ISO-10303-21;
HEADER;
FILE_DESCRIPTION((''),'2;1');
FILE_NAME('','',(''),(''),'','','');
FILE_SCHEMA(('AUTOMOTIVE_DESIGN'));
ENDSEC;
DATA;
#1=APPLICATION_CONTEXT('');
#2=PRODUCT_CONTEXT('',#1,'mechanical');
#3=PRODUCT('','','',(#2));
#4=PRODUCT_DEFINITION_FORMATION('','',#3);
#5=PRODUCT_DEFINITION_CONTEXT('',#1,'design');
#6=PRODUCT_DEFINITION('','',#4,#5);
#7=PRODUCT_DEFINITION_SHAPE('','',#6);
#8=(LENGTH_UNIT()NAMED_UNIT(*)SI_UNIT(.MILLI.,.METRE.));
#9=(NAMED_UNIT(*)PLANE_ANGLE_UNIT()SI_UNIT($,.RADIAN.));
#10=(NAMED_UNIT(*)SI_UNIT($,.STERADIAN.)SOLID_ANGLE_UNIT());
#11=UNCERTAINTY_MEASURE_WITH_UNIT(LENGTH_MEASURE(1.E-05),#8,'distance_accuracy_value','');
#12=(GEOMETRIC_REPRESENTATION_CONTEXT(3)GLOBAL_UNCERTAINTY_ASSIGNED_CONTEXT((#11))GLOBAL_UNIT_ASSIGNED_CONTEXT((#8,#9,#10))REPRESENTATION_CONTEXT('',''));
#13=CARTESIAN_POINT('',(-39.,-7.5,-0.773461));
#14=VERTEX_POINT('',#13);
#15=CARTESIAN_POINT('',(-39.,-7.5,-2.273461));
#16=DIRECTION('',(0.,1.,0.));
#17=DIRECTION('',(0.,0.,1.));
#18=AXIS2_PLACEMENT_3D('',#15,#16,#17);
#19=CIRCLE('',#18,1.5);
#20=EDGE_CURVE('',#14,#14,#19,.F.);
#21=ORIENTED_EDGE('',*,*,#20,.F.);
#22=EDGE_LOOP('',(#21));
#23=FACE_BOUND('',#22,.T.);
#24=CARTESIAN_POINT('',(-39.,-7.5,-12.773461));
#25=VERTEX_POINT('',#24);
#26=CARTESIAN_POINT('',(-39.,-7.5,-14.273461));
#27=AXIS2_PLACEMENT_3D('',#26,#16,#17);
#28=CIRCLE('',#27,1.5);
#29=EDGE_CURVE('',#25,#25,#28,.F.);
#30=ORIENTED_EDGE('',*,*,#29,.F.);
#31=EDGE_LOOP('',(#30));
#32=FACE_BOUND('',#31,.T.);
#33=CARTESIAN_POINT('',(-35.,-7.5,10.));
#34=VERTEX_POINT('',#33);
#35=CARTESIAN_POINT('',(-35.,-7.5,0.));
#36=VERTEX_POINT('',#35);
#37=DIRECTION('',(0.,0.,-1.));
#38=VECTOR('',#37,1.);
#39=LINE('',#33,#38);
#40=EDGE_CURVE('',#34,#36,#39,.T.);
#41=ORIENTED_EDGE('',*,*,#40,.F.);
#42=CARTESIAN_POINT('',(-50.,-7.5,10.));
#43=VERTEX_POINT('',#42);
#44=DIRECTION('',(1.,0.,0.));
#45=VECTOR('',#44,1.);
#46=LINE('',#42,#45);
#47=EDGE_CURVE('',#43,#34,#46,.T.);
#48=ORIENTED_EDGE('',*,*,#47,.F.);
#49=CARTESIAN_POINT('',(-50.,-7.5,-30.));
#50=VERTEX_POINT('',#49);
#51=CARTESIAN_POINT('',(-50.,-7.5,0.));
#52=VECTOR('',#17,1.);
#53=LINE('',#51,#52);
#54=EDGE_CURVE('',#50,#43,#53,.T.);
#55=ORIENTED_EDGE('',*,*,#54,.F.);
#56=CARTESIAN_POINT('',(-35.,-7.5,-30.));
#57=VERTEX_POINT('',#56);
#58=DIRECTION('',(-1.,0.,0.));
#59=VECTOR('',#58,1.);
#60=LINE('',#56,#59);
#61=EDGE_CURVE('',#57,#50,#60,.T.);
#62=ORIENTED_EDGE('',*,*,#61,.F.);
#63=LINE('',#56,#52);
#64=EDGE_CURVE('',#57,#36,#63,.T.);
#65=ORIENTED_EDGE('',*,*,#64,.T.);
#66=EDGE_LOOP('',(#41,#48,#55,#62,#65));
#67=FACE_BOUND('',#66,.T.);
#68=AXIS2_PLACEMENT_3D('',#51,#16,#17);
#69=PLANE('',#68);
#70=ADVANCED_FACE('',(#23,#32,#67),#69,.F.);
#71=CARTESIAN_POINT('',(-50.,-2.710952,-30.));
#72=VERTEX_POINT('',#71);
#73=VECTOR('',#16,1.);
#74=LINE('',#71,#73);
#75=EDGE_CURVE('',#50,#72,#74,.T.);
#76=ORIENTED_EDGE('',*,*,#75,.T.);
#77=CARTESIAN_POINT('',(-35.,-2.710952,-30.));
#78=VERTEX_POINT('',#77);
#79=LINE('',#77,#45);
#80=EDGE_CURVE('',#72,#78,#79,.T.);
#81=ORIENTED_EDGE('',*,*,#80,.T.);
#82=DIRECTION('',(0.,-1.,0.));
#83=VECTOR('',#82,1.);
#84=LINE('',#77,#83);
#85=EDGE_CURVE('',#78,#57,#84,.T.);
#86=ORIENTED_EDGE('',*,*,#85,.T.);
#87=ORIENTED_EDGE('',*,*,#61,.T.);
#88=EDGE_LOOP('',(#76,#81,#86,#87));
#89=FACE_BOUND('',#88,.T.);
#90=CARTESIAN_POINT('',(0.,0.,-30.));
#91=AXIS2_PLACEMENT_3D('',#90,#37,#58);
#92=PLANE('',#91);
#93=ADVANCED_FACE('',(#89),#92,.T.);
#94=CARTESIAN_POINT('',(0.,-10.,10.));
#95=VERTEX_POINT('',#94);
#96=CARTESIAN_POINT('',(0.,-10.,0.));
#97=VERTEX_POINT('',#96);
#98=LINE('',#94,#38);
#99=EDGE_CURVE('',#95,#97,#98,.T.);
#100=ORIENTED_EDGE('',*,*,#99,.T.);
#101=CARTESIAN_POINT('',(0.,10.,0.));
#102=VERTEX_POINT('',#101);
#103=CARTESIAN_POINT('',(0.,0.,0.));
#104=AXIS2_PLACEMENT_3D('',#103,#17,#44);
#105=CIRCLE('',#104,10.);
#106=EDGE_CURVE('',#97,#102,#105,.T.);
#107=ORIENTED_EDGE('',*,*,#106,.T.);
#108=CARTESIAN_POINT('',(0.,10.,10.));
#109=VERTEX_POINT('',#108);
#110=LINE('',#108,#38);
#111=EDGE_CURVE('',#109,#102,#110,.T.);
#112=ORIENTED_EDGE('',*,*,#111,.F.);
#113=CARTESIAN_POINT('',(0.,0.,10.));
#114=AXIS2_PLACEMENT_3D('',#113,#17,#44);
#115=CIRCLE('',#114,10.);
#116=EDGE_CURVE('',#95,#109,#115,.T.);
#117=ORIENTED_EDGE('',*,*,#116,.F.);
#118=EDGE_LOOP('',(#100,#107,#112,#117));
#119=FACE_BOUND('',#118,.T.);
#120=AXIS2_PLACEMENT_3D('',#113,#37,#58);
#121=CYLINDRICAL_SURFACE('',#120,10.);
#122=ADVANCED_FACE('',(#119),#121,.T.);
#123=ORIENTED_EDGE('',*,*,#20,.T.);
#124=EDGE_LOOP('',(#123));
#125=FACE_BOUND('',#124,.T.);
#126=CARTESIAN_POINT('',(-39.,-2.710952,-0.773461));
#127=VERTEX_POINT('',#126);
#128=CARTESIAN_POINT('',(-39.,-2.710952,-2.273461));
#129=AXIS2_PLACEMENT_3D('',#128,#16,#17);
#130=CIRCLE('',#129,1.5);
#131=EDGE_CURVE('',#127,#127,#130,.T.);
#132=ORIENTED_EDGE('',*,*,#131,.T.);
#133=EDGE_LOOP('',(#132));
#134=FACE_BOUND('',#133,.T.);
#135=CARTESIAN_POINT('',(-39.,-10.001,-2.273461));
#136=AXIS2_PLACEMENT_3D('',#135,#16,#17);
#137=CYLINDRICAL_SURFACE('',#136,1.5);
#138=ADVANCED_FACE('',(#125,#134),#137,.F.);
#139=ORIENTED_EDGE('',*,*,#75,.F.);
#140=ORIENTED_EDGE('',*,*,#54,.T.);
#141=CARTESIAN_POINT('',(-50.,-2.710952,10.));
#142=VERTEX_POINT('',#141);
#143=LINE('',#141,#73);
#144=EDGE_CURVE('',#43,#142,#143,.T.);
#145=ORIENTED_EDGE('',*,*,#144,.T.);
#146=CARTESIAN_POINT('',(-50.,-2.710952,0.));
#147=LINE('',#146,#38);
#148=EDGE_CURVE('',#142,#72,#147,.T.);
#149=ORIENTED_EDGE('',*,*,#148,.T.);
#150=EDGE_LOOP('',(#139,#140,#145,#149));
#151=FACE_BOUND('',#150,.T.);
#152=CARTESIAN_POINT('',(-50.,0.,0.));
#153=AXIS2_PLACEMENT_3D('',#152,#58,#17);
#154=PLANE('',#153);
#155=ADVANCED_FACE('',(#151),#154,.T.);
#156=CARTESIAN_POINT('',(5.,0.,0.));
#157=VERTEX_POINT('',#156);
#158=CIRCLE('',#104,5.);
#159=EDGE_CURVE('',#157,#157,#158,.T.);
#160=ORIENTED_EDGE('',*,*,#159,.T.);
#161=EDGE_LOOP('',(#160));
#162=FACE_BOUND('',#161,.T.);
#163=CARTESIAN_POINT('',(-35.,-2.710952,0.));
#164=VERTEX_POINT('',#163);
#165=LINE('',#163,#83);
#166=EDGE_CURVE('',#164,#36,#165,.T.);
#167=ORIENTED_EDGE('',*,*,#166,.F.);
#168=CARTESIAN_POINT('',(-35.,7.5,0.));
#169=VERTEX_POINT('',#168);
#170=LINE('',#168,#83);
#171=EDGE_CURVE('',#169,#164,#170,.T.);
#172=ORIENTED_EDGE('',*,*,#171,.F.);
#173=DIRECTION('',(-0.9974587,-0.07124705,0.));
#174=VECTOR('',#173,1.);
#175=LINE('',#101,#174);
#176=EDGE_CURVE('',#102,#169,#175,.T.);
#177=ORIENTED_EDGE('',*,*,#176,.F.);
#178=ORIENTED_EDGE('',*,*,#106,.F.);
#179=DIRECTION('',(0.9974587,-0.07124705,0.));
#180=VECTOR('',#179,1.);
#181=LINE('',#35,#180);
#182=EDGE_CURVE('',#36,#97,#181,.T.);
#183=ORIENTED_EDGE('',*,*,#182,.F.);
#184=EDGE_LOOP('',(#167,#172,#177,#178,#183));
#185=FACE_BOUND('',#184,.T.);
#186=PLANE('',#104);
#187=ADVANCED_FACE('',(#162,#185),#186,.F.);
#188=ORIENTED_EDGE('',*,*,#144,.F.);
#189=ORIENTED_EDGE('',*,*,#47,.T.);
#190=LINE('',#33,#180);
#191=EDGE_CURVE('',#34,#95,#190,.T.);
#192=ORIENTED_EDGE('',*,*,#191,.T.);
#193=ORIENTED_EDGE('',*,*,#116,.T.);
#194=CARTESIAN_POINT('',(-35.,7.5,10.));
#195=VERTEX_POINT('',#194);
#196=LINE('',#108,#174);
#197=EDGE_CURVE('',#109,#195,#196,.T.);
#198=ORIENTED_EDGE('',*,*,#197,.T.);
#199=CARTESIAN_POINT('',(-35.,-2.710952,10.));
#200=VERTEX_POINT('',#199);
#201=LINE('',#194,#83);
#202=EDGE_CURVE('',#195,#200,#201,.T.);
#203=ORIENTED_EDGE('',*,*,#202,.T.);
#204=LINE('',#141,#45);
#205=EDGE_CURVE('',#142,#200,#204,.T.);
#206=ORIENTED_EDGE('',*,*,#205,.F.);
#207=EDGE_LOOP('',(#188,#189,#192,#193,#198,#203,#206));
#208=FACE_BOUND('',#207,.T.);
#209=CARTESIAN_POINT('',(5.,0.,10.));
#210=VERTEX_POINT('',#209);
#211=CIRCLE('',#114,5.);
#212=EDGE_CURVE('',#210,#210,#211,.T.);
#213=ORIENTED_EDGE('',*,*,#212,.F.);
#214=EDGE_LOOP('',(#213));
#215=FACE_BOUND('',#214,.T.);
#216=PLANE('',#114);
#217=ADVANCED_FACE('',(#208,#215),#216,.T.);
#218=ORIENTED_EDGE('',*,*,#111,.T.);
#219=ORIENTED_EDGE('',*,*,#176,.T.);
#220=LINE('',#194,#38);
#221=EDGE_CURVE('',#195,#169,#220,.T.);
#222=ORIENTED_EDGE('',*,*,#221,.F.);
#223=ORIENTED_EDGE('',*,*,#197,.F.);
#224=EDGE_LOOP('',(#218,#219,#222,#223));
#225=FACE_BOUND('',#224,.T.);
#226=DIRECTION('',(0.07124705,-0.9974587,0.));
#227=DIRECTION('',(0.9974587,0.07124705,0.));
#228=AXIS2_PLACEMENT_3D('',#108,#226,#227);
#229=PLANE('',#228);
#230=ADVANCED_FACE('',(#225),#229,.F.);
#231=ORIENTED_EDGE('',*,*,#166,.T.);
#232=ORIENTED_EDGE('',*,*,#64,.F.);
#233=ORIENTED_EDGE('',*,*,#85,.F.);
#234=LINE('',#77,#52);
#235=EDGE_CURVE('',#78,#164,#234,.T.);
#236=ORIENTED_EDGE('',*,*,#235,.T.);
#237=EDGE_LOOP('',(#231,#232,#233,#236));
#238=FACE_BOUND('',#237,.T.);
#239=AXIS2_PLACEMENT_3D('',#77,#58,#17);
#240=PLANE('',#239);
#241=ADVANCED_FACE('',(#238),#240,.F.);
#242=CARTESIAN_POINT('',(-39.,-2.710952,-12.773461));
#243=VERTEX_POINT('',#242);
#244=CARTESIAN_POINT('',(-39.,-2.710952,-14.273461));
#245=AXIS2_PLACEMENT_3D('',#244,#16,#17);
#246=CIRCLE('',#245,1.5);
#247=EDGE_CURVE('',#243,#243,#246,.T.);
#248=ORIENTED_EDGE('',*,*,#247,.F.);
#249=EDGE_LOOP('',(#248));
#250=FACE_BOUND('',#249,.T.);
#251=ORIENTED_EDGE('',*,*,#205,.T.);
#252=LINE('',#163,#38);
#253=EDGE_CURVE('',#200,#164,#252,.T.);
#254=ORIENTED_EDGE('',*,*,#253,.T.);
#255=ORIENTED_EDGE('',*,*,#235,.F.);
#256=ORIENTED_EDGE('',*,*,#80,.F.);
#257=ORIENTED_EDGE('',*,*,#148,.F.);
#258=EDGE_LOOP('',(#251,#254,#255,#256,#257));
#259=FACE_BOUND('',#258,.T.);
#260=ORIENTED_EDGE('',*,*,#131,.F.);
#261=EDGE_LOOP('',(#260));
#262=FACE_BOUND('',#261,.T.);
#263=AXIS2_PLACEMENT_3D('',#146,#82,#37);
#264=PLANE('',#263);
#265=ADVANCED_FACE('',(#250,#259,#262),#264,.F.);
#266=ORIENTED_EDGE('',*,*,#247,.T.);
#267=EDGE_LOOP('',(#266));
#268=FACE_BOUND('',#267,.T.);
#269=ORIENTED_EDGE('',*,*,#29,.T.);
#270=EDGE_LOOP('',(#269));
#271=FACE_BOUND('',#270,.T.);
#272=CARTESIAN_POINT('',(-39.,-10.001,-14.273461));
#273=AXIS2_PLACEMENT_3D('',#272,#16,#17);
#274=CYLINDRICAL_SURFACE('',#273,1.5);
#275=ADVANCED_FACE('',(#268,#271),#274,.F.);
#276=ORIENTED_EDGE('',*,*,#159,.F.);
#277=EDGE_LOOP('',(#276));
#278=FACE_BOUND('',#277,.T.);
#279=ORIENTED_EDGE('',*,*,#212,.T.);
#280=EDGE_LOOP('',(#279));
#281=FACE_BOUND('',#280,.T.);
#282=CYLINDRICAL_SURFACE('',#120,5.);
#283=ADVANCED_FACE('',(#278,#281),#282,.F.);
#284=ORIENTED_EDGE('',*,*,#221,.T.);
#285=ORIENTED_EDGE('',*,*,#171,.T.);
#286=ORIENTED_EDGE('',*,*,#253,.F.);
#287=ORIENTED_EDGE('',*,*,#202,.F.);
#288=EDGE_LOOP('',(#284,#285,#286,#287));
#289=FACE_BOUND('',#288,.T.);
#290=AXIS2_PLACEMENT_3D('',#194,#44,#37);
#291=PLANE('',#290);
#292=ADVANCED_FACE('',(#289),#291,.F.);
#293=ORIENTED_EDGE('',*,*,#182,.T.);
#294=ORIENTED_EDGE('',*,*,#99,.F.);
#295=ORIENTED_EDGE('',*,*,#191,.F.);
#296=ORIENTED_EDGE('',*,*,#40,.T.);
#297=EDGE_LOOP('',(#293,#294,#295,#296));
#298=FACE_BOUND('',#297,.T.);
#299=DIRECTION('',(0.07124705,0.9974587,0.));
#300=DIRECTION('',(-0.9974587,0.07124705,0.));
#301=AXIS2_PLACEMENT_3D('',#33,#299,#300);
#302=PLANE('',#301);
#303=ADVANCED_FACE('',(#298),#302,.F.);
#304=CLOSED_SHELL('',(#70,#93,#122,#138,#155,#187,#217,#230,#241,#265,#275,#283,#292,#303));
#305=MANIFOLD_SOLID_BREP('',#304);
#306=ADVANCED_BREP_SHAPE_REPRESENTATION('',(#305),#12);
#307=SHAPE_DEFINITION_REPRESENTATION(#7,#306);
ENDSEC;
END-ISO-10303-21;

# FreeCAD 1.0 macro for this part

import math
import FreeCAD as App
import Part
import Sketcher

V = App.Vector
Q = App.Units.Quantity


def add_polygon(sketch, points):
    """Adds a closed chain of lines whose ends are joined by coincident constraints."""
    first, n = sketch.GeometryCount, len(points)
    for a, b in zip(points, points[1:] + points[:1]):
        sketch.addGeometry(Part.LineSegment(App.Vector(*a, 0), App.Vector(*b, 0)), False)
    for i in range(n):
        sketch.addConstraint(Sketcher.Constraint("Coincident", first + i, 2, first + (i + 1) % n, 1))

doc = App.newDocument("Part")
body = doc.addObject("PartDesign::Body", "Body")

sketch1 = body.newObject("Sketcher::SketchObject", "Sketch")
sketch1.AttachmentSupport = (doc.getObject("XY_Plane"), [""])
sketch1.MapMode = "FlatFace"
sketch1.addGeometry([
    Part.LineSegment(V(0, 10, 0), V(-35, 8, 0)),
    Part.LineSegment(V(-35, 8, 0), V(-35, -8, 0)),
    Part.LineSegment(V(-35, -8, 0), V(0, -10, 0)),
    Part.ArcOfCircle(Part.Circle(V(0, 0, 0), V(0, 0, 1), 10), math.radians(-90), math.radians(90)),
    Part.Circle(V(0, 0, 0), V(0, 0, 1), 5),
], False)
sketch1.addConstraint([
    Sketcher.Constraint("Coincident", 0, 2, 1, 1),
    Sketcher.Constraint("Coincident", 1, 2, 2, 1),
    Sketcher.Constraint("Coincident", 2, 2, 3, 1),
    Sketcher.Constraint("Coincident", 3, 2, 0, 1),
    Sketcher.Constraint("Vertical", 1),
    Sketcher.Constraint("Coincident", 3, 3, -1, 1),
    Sketcher.Constraint("Coincident", 4, 3, -1, 1),
    Sketcher.Constraint("PointOnObject", 2, 2, -2),
    Sketcher.Constraint("PointOnObject", 3, 2, -2),
    Sketcher.Constraint("Equal", 0, 2),
    Sketcher.Constraint("Diameter", 4, Q("10 mm")),
    Sketcher.Constraint("Radius", 3, Q("10 mm")),
    Sketcher.Constraint("DistanceY", 1, 2, 1, 1, Q("15 mm")),
    Sketcher.Constraint("DistanceX", 0, 2, -1, 1, Q("35 mm")),
])
pad1 = body.newObject("PartDesign::Pad", "Pad")
pad1.Profile = sketch1
pad1.Length = 10

sketch2 = body.newObject("Sketcher::SketchObject", "Sketch001")
sketch2.AttachmentSupport = (doc.getObject("YZ_Plane"), [""])
sketch2.MapMode = "FlatFace"
sketch2.AttachmentOffset = App.Placement(V(0, 0, -35), App.Rotation())
add_polygon(sketch2, [(-2.7, 0), (-7.5, 0), (-7.5, 10), (-2.7, 10)])
sketch2.addConstraint([
    Sketcher.Constraint("Horizontal", 0),
    Sketcher.Constraint("Vertical", 1),
    Sketcher.Constraint("Horizontal", 2),
    Sketcher.Constraint("Vertical", 3),
    Sketcher.Constraint("PointOnObject", 0, 2, -1),
    Sketcher.Constraint("DistanceY", 1, 1, 1, 2, Q("10 mm")),
    Sketcher.Constraint("DistanceX", 0, 2, -1, 1, Q("7.5 mm")),
    Sketcher.Constraint("DistanceX", 0, 2, 0, 1, Q("4.789048 mm")),
])
pad2 = body.newObject("PartDesign::Pad", "Pad001")
pad2.Profile = sketch2
pad2.Length = 15
pad2.Reversed = True

sketch3 = body.newObject("Sketcher::SketchObject", "Sketch002")
sketch3.AttachmentSupport = (doc.getObject("XY_Plane"), [""])
sketch3.MapMode = "FlatFace"
add_polygon(sketch3, [(-35, -2.7), (-35, -7.5), (-50, -7.5), (-50, -2.7)])
sketch3.addConstraint([
    Sketcher.Constraint("Vertical", 0),
    Sketcher.Constraint("Horizontal", 1),
    Sketcher.Constraint("Vertical", 2),
    Sketcher.Constraint("Horizontal", 3),
    Sketcher.Constraint("DistanceX", 1, 2, 1, 1, Q("15 mm")),
    Sketcher.Constraint("DistanceX", 0, 2, -1, 1, Q("35 mm")),
    Sketcher.Constraint("DistanceY", 0, 2, -1, 1, Q("7.5 mm")),
    Sketcher.Constraint("DistanceY", 0, 2, 0, 1, Q("4.789048 mm")),
])
pad3 = body.newObject("PartDesign::Pad", "Pad002")
pad3.Profile = sketch3
pad3.Length = 30
pad3.Reversed = True

sketch4 = body.newObject("Sketcher::SketchObject", "Sketch003")
sketch4.AttachmentSupport = (doc.getObject("XZ_Plane"), [""])
sketch4.MapMode = "FlatFace"
sketch4.AttachmentOffset = App.Placement(V(0, 0, 2.710952), App.Rotation())
sketch4.addGeometry(Part.Circle(V(-39, -2.3, 0), V(0, 0, 1), 1.5), False)
sketch4.addConstraint([
    Sketcher.Constraint("Diameter", 0, Q("3 mm")),
    Sketcher.Constraint("DistanceX", 0, 3, -1, 1, Q("39 mm")),
    Sketcher.Constraint("DistanceY", 0, 3, -1, 1, Q("2.273461 mm")),
])
pocket1 = body.newObject("PartDesign::Pocket", "Pocket")
pocket1.Profile = sketch4
pocket1.Type = "UpToFirst"
pocket1.Reversed = True

sketch5 = body.newObject("Sketcher::SketchObject", "Sketch004")
sketch5.AttachmentSupport = (doc.getObject("XZ_Plane"), [""])
sketch5.MapMode = "FlatFace"
sketch5.AttachmentOffset = App.Placement(V(0, 0, 2.710952), App.Rotation())
sketch5.addGeometry(Part.Circle(V(-39, -14.3, 0), V(0, 0, 1), 1.5), False)
sketch5.addConstraint([
    Sketcher.Constraint("Diameter", 0, Q("3 mm")),
    Sketcher.Constraint("DistanceX", 0, 3, -1, 1, Q("39 mm")),
    Sketcher.Constraint("DistanceY", 0, 3, -1, 1, Q("14.273461 mm")),
])
pocket2 = body.newObject("PartDesign::Pocket", "Pocket001")
pocket2.Profile = sketch5
pocket2.Type = "UpToFirst"
pocket2.Reversed = True

doc.recompute()
